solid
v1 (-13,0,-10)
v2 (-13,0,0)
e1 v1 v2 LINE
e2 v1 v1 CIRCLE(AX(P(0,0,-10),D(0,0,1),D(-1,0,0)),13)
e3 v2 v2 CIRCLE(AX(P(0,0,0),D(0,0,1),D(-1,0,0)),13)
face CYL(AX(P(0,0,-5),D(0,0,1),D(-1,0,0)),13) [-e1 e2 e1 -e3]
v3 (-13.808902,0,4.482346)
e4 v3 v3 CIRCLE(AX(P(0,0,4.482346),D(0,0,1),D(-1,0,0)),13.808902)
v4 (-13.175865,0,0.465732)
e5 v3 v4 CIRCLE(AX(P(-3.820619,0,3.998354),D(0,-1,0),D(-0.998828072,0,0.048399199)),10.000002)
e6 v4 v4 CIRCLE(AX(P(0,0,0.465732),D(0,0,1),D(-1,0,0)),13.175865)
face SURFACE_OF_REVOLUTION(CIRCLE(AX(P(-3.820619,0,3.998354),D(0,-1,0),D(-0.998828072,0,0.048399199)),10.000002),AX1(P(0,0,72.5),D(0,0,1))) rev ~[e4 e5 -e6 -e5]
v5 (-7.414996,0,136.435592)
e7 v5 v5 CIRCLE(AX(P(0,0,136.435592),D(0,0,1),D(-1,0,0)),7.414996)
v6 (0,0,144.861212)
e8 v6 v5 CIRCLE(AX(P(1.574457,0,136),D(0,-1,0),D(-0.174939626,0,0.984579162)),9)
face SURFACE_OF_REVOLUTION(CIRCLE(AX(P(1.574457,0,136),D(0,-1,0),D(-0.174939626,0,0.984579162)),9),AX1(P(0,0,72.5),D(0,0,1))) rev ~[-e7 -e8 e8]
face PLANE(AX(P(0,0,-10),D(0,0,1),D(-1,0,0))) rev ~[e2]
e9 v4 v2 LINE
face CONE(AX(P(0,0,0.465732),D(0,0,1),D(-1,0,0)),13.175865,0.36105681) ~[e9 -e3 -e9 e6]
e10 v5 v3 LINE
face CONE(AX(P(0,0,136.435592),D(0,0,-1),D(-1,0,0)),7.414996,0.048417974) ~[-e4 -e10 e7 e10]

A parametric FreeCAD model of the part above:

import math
import FreeCAD as App
import Part
import Sketcher
from FreeCAD import Vector

doc = App.newDocument("Part")
body = doc.addObject("PartDesign::Body", "Body")

sketch1 = body.newObject("Sketcher::SketchObject", "Sketch")
sketch1.AttachmentSupport = (doc.getObject("XZ_Plane"), [""])
sketch1.MapMode = "FlatFace"
sketch1.addGeometry([
    Part.LineSegment(Vector(-13.18, 0.47, 0), Vector(-13, 0, 0)),
    Part.LineSegment(Vector(-13, 0, 0), Vector(-13, -10, 0)),
    Part.LineSegment(Vector(-13, -10, 0), Vector(0, -10, 0)),
    Part.LineSegment(Vector(0, -10, 0), Vector(0, 144.86, 0)),
    Part.ArcOfCircle(Part.Circle(Vector(1.57, 136, 0), Vector(0, 0, 1), 9), math.radians(100), math.radians(177)),
    Part.LineSegment(Vector(-7.41, 136.44, 0), Vector(-13.81, 4.48, 0)),
    Part.ArcOfCircle(Part.Circle(Vector(-3.82, 4, 0), Vector(0, 0, 1), 10), math.radians(177), math.radians(201)),
], False)
sketch1.addConstraint([
    Sketcher.Constraint("Coincident", 0, 2, 1, 1),
    Sketcher.Constraint("Coincident", 1, 2, 2, 1),
    Sketcher.Constraint("Coincident", 2, 2, 3, 1),
    Sketcher.Constraint("Coincident", 3, 2, 4, 1),
    Sketcher.Constraint("Tangent", 4, 2, 5, 1),
    Sketcher.Constraint("Tangent", 5, 2, 6, 1),
    Sketcher.Constraint("Tangent", 6, 2, 0, 1),
    Sketcher.Constraint("Vertical", 1),
    Sketcher.Constraint("Horizontal", 2),
    Sketcher.Constraint("Vertical", 3),
    Sketcher.Constraint("PointOnObject", 0, 2, -1),
    Sketcher.Constraint("PointOnObject", 2, 2, -2),
    Sketcher.Constraint("Radius", 4, 9.0),
    Sketcher.Constraint("DistanceX", 2, 1, 2, 2, 13.0),
    Sketcher.Constraint("DistanceY", 1, 2, 1, 1, 10.0),
    Sketcher.Constraint("DistanceY", -1, 1, 4, 3, 136.0),
    Sketcher.Constraint("Radius", 6, 10.000002),
    Sketcher.Constraint("DistanceY", 3, 1, 3, 2, 154.861212),
    Sketcher.Constraint("DistanceX", 5, 2, 0, 2, 0.808902),
    Sketcher.Constraint("Distance", 0, 0.49783),
])
revolution = body.newObject("PartDesign::Revolution", "Revolution")
revolution.Profile = sketch1
revolution.ReferenceAxis = (sketch1, ["V_Axis"])
revolution.Angle = 360

doc.recompute()
